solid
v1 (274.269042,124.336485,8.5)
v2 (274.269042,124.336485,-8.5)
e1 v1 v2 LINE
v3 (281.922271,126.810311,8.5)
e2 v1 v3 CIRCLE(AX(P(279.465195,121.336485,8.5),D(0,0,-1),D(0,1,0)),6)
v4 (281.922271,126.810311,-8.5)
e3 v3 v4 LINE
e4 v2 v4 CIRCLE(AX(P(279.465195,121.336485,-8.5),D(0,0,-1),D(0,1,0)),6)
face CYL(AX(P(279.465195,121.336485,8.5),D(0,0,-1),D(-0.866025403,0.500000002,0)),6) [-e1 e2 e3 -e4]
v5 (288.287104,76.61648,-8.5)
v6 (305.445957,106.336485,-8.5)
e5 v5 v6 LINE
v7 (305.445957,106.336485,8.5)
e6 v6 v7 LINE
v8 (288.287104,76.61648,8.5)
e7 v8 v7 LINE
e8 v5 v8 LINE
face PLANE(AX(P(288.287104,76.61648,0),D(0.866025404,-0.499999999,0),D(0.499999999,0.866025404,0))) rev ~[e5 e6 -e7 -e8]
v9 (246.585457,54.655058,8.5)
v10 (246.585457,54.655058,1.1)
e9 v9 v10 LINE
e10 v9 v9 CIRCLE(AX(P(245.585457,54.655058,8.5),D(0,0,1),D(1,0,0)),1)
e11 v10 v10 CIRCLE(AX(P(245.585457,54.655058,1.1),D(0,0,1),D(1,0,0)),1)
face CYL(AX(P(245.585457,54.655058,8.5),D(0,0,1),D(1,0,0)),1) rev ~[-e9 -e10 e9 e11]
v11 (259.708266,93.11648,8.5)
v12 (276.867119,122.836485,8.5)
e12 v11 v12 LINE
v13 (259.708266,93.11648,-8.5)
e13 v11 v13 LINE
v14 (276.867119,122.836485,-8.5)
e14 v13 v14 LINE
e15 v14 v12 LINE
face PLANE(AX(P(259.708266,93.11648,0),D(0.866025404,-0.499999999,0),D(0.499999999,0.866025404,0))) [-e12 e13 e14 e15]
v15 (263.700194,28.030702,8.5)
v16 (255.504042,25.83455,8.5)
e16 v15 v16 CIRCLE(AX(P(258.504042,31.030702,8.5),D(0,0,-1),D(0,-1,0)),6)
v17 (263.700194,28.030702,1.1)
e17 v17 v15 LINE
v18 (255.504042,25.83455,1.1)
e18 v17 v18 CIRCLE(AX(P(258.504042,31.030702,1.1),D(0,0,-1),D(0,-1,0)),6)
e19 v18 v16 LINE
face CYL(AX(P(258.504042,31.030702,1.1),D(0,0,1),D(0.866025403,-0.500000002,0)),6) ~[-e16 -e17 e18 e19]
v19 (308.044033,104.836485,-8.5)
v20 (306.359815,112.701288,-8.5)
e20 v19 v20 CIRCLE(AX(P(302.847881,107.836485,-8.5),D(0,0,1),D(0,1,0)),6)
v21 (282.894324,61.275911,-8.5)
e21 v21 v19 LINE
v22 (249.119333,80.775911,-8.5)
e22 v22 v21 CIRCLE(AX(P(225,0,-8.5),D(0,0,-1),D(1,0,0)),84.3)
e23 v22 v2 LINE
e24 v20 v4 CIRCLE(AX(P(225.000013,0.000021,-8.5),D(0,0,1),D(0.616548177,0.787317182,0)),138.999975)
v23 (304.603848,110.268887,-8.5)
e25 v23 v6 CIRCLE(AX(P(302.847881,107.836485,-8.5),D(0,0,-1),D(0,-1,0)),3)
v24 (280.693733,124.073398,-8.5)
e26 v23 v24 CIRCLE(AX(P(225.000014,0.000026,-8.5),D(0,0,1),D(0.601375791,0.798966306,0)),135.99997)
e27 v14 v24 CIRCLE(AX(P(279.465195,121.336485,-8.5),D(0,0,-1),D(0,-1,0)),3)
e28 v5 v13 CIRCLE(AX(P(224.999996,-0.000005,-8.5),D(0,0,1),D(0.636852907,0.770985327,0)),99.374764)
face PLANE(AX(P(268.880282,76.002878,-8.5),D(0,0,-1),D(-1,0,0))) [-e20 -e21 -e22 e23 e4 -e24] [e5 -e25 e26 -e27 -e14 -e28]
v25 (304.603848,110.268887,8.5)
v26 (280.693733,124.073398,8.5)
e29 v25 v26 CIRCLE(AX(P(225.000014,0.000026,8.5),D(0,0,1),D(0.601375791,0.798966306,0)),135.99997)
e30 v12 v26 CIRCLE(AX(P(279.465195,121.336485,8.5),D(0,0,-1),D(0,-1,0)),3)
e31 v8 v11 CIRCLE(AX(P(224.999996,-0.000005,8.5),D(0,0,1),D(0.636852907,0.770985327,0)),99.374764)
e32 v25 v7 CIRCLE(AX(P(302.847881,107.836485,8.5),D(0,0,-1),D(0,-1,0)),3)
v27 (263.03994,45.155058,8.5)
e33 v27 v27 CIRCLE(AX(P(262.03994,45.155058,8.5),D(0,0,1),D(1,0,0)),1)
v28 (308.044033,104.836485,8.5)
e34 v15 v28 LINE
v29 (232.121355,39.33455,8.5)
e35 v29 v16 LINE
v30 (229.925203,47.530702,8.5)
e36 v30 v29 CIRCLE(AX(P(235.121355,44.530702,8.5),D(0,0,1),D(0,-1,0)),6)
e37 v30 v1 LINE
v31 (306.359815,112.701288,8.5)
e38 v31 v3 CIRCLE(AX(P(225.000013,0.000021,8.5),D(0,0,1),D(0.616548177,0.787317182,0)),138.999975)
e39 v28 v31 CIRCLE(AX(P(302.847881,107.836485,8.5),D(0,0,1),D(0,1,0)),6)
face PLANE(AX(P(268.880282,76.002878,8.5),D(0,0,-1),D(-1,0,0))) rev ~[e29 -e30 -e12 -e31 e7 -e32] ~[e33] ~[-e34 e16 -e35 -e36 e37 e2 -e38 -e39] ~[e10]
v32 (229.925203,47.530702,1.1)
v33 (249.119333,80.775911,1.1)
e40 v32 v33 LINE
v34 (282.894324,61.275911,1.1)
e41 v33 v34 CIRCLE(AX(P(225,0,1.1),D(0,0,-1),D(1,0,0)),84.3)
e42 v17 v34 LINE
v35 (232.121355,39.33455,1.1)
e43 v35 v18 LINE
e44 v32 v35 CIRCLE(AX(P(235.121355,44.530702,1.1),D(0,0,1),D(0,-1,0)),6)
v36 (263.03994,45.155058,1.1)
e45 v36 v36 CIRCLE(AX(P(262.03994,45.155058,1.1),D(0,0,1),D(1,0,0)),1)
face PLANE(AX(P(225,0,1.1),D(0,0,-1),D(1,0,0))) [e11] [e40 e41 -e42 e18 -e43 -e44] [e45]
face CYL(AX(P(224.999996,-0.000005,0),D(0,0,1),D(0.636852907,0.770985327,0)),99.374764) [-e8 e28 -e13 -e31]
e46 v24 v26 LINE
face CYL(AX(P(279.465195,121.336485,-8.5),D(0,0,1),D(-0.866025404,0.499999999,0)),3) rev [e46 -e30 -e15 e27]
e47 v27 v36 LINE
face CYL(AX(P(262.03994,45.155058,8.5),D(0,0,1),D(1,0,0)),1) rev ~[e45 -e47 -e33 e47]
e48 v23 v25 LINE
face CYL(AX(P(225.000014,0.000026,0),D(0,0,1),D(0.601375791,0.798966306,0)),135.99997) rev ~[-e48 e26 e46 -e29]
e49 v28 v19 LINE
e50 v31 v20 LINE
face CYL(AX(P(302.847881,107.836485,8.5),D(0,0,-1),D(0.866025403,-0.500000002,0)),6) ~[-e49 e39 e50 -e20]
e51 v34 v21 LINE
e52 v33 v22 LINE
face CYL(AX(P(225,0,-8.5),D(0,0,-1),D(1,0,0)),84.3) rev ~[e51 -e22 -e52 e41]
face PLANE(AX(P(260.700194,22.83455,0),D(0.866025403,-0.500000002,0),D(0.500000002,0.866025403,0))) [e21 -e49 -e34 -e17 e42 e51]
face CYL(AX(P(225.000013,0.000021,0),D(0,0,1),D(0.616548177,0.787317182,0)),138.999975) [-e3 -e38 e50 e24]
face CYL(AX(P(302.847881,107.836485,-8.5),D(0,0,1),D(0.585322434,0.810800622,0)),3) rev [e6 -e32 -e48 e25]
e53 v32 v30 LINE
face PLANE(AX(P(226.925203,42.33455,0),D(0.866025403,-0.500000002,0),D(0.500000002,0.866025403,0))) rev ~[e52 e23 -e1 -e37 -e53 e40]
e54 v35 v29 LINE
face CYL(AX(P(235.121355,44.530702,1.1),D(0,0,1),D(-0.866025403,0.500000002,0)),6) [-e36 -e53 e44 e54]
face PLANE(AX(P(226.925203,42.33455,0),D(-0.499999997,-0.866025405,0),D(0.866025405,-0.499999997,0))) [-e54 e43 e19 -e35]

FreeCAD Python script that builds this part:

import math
import FreeCAD as App
import Part
import Sketcher
Q = App.Units.Quantity


def edges_at(feature, points):
    """Names of the edges that pass closest to the given points."""
    edges = feature.Shape.Edges
    near = lambda p: min(range(len(edges)), key=lambda i: edges[i].distToShape(Part.Vertex(*p))[0])
    return sorted({f"Edge{near(p) + 1}" for p in points})

doc = App.newDocument("Part")
body = doc.addObject("PartDesign::Body", "Body")

sketch1 = body.newObject("Sketcher::SketchObject", "Sketch")
sketch1.AttachmentSupport = (doc.getObject("XY_Plane"), [""])
sketch1.MapMode = "FlatFace"
sketch1.addGeometry([
    Part.LineSegment(App.Vector(277, 129, 0), App.Vector(227, 42, 0)),
    Part.LineSegment(App.Vector(227, 42, 0), App.Vector(261, 23, 0)),
    Part.LineSegment(App.Vector(261, 23, 0), App.Vector(311, 109, 0)),
    Part.ArcOfCircle(Part.Circle(App.Vector(225, 0, 0), App.Vector(0, 0, 1), 139), math.radians(51.94), math.radians(68.06)),
    Part.LineSegment(App.Vector(260, 93, 0), App.Vector(278, 125, 0)),
    Part.ArcOfCircle(Part.Circle(App.Vector(225, 0, 0), App.Vector(0, 0, 1), 136), math.radians(53.03), math.radians(66.97)),
    Part.LineSegment(App.Vector(307, 109, 0), App.Vector(288, 77, 0)),
    Part.ArcOfCircle(Part.Circle(App.Vector(225, 0, 0), App.Vector(0, 0, 1), 99), math.radians(50.44), math.radians(69.56)),
], False)
sketch1.addConstraint([
    Sketcher.Constraint("Coincident", 0, 2, 1, 1),
    Sketcher.Constraint("Coincident", 1, 2, 2, 1),
    Sketcher.Constraint("Coincident", 2, 2, 3, 1),
    Sketcher.Constraint("Coincident", 3, 2, 0, 1),
    Sketcher.Constraint("Coincident", 4, 2, 5, 2),
    Sketcher.Constraint("Coincident", 5, 1, 6, 1),
    Sketcher.Constraint("Coincident", 6, 2, 7, 1),
    Sketcher.Constraint("Coincident", 7, 2, 4, 1),
    Sketcher.Constraint("Coincident", 5, 3, 3, 3),
    Sketcher.Constraint("Perpendicular", 0, 1),
    Sketcher.Constraint("Perpendicular", 1, 2),
    Sketcher.Constraint("Parallel", 2, 4),
    Sketcher.Constraint("Parallel", 4, 6),
    Sketcher.Constraint("Equal", 0, 2),
    Sketcher.Constraint("Equal", 4, 6),
    Sketcher.Constraint("Angle", 0, Q("-120 deg")),
    Sketcher.Constraint("Distance", 0, Q("100 mm")),
    Sketcher.Constraint("Distance", 1, Q("39 mm")),
    Sketcher.Constraint("Distance", 4, Q("37 mm")),
    Sketcher.Constraint("DistanceY", 5, 1, 4, 2, Q("16.5 mm")),
    Sketcher.Constraint("Radius", 5, Q("135.99997 mm")),
    Sketcher.Constraint("Radius", 3, Q("138.999975 mm")),
    Sketcher.Constraint("Radius", 7, Q("99.374764 mm")),
    Sketcher.Constraint("DistanceX", 3, 2, 5, 1, Q("29.861901 mm")),
    Sketcher.Constraint("DistanceY", -1, 1, 0, 2, Q("42.33455 mm")),
    Sketcher.Constraint("DistanceX", -1, 1, 3, 3, Q("225.000013 mm")),
])
pad1 = body.newObject("PartDesign::Pad", "Pad")
pad1.Profile = sketch1
pad1.Length = 17
pad1.Midplane = True
doc.recompute()

fillet = body.newObject("PartDesign::Fillet", "Fillet")
fillet.Base = (pad1, edges_at(pad1, [(310.7, 109.437, 0), (276.925, 128.937, 0)]))
fillet.Radius = 6
doc.recompute()

fillet2 = body.newObject("PartDesign::Fillet", "Fillet001")
fillet2.Base = (fillet, edges_at(fillet, [(278.208, 125.159, 0), (306.787, 108.659, 0)]))
fillet2.Radius = 3

sketch2 = body.newObject("Sketcher::SketchObject", "Sketch001")
sketch2.AttachmentSupport = (doc.getObject("XY_Plane"), [""])
sketch2.MapMode = "FlatFace"
sketch2.AttachmentOffset = App.Placement(App.Vector(0, 0, -8.5), App.Rotation())
sketch2.addGeometry(Part.Circle(App.Vector(225, 0, 0), App.Vector(0, 0, 1), 84), False)
sketch2.addConstraint([
    Sketcher.Constraint("PointOnObject", 0, 3, -1),
    Sketcher.Constraint("Diameter", 0, Q("168.6 mm")),
    Sketcher.Constraint("DistanceX", -1, 1, 0, 3, Q("225 mm")),
])
pocket1 = body.newObject("PartDesign::Pocket", "Pocket")
pocket1.Profile = sketch2
pocket1.Length = 9.6
pocket1.Reversed = True

sketch3 = body.newObject("Sketcher::SketchObject", "Sketch002")
sketch3.AttachmentSupport = (doc.getObject("XY_Plane"), [""])
sketch3.MapMode = "FlatFace"
sketch3.AttachmentOffset = App.Placement(App.Vector(0, 0, 8.5), App.Rotation())
sketch3.addGeometry([
    Part.Circle(App.Vector(245.6, 54.7, 0), App.Vector(0, 0, 1), 1),
    Part.Circle(App.Vector(262, 45.2, 0), App.Vector(0, 0, 1), 1),
], False)
sketch3.addConstraint([
    Sketcher.Constraint("Equal", 0, 1),
    Sketcher.Constraint("Diameter", 0, Q("2 mm")),
    Sketcher.Constraint("DistanceY", 1, 3, 0, 3, Q("9.5 mm")),
    Sketcher.Constraint("DistanceX", -1, 1, 1, 3, Q("262.03994 mm")),
    Sketcher.Constraint("DistanceX", -1, 1, 0, 3, Q("245.585457 mm")),
    Sketcher.Constraint("DistanceY", -1, 1, 0, 3, Q("54.655058 mm")),
])
pocket2 = body.newObject("PartDesign::Pocket", "Pocket001")
pocket2.Profile = sketch3
pocket2.Type = "ThroughAll"
doc.recompute()

fillet3 = body.newObject("PartDesign::Fillet", "Fillet002")
fillet3.Base = (pocket2, edges_at(pocket2, [(226.925, 42.335, 4.8), (260.7, 22.835, 4.8)]))
fillet3.Radius = 6

doc.recompute()
